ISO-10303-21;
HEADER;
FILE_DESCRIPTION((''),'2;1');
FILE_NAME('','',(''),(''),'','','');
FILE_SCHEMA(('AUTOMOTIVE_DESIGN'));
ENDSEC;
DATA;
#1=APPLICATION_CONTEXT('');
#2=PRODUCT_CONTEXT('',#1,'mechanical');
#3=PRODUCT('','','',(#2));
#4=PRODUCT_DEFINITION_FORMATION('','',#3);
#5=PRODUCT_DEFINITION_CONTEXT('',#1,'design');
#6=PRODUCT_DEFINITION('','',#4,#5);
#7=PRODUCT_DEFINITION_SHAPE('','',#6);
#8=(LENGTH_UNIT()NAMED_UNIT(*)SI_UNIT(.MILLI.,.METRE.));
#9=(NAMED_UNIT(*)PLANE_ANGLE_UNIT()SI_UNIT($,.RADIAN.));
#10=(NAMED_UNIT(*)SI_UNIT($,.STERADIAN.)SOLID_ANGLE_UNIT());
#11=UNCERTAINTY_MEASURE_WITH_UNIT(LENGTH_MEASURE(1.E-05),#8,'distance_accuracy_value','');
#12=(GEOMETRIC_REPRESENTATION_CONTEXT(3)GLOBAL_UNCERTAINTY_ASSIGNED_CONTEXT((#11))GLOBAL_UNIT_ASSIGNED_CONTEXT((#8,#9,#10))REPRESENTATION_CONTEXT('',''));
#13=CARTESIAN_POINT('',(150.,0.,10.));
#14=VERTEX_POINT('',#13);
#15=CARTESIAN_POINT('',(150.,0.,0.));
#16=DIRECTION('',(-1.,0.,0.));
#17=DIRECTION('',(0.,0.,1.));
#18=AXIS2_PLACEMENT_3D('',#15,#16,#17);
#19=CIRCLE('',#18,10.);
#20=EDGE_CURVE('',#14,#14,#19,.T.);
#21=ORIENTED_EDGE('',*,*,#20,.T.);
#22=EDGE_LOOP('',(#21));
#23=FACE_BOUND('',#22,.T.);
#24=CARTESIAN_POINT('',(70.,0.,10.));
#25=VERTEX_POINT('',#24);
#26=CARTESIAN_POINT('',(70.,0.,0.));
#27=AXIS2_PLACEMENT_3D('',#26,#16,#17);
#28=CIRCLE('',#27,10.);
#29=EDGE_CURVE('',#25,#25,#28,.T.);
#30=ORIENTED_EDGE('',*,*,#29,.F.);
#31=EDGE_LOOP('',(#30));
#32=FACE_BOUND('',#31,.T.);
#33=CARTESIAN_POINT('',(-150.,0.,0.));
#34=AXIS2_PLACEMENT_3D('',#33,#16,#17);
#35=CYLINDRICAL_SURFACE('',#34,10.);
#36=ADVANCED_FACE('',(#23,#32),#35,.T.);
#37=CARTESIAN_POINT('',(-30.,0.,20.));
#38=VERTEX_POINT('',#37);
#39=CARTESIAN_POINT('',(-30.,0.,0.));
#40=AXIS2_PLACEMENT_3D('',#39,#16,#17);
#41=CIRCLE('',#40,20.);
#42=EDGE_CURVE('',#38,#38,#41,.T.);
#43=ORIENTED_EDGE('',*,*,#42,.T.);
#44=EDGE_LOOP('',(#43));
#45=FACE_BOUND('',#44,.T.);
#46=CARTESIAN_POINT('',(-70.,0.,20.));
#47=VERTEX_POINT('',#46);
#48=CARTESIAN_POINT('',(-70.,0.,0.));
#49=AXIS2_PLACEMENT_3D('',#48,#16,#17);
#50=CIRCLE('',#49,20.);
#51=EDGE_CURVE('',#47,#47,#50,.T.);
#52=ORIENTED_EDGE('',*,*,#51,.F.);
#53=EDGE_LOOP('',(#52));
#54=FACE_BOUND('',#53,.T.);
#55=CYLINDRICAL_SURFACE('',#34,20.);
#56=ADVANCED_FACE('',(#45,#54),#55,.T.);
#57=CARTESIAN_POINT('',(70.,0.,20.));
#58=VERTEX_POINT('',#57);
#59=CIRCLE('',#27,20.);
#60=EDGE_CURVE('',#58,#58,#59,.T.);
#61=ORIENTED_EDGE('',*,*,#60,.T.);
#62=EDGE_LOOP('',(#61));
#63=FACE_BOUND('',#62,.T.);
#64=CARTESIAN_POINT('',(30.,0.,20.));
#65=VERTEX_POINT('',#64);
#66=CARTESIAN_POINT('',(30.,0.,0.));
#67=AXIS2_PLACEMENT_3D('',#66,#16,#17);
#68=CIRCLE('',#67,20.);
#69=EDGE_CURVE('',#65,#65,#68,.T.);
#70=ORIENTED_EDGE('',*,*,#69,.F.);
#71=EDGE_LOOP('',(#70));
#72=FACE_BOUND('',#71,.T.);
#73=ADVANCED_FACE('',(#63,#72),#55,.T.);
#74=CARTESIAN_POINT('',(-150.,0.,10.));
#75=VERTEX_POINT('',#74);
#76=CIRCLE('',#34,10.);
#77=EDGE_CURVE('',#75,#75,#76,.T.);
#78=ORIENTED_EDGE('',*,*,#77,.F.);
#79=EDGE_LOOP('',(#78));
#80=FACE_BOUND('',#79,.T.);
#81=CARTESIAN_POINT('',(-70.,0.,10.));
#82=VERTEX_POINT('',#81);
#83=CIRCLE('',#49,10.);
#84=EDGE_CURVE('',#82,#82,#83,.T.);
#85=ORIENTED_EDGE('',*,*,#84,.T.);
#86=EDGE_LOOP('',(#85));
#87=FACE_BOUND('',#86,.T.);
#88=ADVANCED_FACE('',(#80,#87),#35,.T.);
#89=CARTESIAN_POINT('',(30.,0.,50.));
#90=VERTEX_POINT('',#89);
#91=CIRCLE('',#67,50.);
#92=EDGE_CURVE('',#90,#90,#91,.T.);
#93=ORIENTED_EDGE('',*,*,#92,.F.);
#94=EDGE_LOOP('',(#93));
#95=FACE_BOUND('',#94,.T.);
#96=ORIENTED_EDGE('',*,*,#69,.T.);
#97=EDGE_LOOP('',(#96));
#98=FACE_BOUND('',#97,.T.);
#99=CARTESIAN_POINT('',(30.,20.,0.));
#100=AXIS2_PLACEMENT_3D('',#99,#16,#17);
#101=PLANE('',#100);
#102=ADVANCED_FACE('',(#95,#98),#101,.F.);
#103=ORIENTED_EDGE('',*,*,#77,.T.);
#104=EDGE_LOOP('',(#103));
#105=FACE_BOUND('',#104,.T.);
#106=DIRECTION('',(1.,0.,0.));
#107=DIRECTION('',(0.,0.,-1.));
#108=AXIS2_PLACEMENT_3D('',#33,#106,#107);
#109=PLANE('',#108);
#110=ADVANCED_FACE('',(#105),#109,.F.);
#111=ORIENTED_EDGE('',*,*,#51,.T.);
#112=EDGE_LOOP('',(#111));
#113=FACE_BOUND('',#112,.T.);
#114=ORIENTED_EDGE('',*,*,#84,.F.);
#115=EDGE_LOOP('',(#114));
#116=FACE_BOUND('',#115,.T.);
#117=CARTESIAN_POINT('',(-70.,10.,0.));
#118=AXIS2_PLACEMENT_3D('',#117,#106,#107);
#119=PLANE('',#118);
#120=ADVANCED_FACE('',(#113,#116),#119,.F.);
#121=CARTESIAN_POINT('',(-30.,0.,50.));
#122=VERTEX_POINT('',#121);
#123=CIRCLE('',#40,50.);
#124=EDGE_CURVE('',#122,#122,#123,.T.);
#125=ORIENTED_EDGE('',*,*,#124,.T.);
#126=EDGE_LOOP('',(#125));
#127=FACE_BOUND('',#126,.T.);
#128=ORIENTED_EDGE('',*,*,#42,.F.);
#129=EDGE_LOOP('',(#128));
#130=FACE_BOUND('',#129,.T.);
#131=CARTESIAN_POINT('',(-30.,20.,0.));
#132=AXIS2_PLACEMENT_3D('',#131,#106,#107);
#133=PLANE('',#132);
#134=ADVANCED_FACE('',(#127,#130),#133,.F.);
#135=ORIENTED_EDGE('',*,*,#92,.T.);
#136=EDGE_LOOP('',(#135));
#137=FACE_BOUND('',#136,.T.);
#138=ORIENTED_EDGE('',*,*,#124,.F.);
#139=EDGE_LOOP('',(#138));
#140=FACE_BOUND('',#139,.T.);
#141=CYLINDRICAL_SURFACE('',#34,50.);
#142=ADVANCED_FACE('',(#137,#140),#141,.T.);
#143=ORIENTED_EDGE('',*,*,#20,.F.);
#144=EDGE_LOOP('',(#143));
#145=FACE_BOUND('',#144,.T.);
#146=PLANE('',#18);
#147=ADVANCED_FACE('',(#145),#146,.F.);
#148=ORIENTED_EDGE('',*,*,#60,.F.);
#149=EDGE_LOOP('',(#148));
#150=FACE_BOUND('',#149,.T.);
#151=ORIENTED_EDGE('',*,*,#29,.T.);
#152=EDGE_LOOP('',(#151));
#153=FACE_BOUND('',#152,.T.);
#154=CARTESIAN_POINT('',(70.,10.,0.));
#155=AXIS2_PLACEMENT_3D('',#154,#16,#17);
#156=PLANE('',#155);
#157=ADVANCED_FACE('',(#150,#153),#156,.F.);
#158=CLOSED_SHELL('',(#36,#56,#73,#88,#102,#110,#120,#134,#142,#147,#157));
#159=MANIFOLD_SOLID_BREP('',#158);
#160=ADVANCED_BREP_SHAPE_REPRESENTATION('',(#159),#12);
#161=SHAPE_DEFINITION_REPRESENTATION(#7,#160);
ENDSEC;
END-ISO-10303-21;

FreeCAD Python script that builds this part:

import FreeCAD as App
import Part
import Sketcher

V = App.Vector
Q = App.Units.Quantity


def add_polygon(sketch, points):
    """Adds a closed chain of lines whose ends are joined by coincident constraints."""
    first, n = sketch.GeometryCount, len(points)
    for a, b in zip(points, points[1:] + points[:1]):
        sketch.addGeometry(Part.LineSegment(App.Vector(*a, 0), App.Vector(*b, 0)), False)
    for i in range(n):
        sketch.addConstraint(Sketcher.Constraint("Coincident", first + i, 2, first + (i + 1) % n, 1))

doc = App.newDocument("Part")
body = doc.addObject("PartDesign::Body", "Body")

# Sketch on XY plane
sketch1 = body.newObject("Sketcher::SketchObject", "Sketch")
sketch1.AttachmentSupport = (doc.getObject("XY_Plane"), [""])
sketch1.MapMode = "FlatFace"
add_polygon(sketch1, [(150, 0), (150, 10), (70, 10), (70, 20), (30, 20), (30, 50), (-30, 50), (-30, 20), (-70, 20), (-70, 10), (-150, 10), (-150, 0)])  # lines 0-11
sketch1.addConstraint([
    Sketcher.Constraint("Vertical", 0),
    Sketcher.Constraint("Horizontal", 1),
    Sketcher.Constraint("Vertical", 2),
    Sketcher.Constraint("Horizontal", 3),
    Sketcher.Constraint("Vertical", 4),
    Sketcher.Constraint("Horizontal", 5),
    Sketcher.Constraint("Vertical", 6),
    Sketcher.Constraint("Horizontal", 7),
    Sketcher.Constraint("Vertical", 8),
    Sketcher.Constraint("Horizontal", 9),
    Sketcher.Constraint("Vertical", 10),
    Sketcher.Constraint("Horizontal", 11),
    Sketcher.Constraint("Symmetric", 10, 2, 11, 2, -1, 1),
    Sketcher.Constraint("Symmetric", 3, 2, 6, 2, -2),
    Sketcher.Constraint("Symmetric", 1, 2, 8, 2, -2),
    Sketcher.Constraint("Equal", 0, 2),
    Sketcher.Constraint("DistanceX", 1, 2, 1, 1, Q("80 mm")),
    Sketcher.Constraint("DistanceX", 3, 2, 3, 1, Q("40 mm")),
    Sketcher.Constraint("DistanceX", 5, 2, 5, 1, Q("60 mm")),
    Sketcher.Constraint("DistanceY", 0, 1, 0, 2, Q("10 mm")),
    Sketcher.Constraint("DistanceY", 4, 1, 4, 2, Q("30 mm")),
])
revolution = body.newObject("PartDesign::Revolution", "Revolution")
revolution.Profile = sketch1
revolution.ReferenceAxis = (sketch1, ["H_Axis"])
revolution.Angle = 360

doc.recompute()
